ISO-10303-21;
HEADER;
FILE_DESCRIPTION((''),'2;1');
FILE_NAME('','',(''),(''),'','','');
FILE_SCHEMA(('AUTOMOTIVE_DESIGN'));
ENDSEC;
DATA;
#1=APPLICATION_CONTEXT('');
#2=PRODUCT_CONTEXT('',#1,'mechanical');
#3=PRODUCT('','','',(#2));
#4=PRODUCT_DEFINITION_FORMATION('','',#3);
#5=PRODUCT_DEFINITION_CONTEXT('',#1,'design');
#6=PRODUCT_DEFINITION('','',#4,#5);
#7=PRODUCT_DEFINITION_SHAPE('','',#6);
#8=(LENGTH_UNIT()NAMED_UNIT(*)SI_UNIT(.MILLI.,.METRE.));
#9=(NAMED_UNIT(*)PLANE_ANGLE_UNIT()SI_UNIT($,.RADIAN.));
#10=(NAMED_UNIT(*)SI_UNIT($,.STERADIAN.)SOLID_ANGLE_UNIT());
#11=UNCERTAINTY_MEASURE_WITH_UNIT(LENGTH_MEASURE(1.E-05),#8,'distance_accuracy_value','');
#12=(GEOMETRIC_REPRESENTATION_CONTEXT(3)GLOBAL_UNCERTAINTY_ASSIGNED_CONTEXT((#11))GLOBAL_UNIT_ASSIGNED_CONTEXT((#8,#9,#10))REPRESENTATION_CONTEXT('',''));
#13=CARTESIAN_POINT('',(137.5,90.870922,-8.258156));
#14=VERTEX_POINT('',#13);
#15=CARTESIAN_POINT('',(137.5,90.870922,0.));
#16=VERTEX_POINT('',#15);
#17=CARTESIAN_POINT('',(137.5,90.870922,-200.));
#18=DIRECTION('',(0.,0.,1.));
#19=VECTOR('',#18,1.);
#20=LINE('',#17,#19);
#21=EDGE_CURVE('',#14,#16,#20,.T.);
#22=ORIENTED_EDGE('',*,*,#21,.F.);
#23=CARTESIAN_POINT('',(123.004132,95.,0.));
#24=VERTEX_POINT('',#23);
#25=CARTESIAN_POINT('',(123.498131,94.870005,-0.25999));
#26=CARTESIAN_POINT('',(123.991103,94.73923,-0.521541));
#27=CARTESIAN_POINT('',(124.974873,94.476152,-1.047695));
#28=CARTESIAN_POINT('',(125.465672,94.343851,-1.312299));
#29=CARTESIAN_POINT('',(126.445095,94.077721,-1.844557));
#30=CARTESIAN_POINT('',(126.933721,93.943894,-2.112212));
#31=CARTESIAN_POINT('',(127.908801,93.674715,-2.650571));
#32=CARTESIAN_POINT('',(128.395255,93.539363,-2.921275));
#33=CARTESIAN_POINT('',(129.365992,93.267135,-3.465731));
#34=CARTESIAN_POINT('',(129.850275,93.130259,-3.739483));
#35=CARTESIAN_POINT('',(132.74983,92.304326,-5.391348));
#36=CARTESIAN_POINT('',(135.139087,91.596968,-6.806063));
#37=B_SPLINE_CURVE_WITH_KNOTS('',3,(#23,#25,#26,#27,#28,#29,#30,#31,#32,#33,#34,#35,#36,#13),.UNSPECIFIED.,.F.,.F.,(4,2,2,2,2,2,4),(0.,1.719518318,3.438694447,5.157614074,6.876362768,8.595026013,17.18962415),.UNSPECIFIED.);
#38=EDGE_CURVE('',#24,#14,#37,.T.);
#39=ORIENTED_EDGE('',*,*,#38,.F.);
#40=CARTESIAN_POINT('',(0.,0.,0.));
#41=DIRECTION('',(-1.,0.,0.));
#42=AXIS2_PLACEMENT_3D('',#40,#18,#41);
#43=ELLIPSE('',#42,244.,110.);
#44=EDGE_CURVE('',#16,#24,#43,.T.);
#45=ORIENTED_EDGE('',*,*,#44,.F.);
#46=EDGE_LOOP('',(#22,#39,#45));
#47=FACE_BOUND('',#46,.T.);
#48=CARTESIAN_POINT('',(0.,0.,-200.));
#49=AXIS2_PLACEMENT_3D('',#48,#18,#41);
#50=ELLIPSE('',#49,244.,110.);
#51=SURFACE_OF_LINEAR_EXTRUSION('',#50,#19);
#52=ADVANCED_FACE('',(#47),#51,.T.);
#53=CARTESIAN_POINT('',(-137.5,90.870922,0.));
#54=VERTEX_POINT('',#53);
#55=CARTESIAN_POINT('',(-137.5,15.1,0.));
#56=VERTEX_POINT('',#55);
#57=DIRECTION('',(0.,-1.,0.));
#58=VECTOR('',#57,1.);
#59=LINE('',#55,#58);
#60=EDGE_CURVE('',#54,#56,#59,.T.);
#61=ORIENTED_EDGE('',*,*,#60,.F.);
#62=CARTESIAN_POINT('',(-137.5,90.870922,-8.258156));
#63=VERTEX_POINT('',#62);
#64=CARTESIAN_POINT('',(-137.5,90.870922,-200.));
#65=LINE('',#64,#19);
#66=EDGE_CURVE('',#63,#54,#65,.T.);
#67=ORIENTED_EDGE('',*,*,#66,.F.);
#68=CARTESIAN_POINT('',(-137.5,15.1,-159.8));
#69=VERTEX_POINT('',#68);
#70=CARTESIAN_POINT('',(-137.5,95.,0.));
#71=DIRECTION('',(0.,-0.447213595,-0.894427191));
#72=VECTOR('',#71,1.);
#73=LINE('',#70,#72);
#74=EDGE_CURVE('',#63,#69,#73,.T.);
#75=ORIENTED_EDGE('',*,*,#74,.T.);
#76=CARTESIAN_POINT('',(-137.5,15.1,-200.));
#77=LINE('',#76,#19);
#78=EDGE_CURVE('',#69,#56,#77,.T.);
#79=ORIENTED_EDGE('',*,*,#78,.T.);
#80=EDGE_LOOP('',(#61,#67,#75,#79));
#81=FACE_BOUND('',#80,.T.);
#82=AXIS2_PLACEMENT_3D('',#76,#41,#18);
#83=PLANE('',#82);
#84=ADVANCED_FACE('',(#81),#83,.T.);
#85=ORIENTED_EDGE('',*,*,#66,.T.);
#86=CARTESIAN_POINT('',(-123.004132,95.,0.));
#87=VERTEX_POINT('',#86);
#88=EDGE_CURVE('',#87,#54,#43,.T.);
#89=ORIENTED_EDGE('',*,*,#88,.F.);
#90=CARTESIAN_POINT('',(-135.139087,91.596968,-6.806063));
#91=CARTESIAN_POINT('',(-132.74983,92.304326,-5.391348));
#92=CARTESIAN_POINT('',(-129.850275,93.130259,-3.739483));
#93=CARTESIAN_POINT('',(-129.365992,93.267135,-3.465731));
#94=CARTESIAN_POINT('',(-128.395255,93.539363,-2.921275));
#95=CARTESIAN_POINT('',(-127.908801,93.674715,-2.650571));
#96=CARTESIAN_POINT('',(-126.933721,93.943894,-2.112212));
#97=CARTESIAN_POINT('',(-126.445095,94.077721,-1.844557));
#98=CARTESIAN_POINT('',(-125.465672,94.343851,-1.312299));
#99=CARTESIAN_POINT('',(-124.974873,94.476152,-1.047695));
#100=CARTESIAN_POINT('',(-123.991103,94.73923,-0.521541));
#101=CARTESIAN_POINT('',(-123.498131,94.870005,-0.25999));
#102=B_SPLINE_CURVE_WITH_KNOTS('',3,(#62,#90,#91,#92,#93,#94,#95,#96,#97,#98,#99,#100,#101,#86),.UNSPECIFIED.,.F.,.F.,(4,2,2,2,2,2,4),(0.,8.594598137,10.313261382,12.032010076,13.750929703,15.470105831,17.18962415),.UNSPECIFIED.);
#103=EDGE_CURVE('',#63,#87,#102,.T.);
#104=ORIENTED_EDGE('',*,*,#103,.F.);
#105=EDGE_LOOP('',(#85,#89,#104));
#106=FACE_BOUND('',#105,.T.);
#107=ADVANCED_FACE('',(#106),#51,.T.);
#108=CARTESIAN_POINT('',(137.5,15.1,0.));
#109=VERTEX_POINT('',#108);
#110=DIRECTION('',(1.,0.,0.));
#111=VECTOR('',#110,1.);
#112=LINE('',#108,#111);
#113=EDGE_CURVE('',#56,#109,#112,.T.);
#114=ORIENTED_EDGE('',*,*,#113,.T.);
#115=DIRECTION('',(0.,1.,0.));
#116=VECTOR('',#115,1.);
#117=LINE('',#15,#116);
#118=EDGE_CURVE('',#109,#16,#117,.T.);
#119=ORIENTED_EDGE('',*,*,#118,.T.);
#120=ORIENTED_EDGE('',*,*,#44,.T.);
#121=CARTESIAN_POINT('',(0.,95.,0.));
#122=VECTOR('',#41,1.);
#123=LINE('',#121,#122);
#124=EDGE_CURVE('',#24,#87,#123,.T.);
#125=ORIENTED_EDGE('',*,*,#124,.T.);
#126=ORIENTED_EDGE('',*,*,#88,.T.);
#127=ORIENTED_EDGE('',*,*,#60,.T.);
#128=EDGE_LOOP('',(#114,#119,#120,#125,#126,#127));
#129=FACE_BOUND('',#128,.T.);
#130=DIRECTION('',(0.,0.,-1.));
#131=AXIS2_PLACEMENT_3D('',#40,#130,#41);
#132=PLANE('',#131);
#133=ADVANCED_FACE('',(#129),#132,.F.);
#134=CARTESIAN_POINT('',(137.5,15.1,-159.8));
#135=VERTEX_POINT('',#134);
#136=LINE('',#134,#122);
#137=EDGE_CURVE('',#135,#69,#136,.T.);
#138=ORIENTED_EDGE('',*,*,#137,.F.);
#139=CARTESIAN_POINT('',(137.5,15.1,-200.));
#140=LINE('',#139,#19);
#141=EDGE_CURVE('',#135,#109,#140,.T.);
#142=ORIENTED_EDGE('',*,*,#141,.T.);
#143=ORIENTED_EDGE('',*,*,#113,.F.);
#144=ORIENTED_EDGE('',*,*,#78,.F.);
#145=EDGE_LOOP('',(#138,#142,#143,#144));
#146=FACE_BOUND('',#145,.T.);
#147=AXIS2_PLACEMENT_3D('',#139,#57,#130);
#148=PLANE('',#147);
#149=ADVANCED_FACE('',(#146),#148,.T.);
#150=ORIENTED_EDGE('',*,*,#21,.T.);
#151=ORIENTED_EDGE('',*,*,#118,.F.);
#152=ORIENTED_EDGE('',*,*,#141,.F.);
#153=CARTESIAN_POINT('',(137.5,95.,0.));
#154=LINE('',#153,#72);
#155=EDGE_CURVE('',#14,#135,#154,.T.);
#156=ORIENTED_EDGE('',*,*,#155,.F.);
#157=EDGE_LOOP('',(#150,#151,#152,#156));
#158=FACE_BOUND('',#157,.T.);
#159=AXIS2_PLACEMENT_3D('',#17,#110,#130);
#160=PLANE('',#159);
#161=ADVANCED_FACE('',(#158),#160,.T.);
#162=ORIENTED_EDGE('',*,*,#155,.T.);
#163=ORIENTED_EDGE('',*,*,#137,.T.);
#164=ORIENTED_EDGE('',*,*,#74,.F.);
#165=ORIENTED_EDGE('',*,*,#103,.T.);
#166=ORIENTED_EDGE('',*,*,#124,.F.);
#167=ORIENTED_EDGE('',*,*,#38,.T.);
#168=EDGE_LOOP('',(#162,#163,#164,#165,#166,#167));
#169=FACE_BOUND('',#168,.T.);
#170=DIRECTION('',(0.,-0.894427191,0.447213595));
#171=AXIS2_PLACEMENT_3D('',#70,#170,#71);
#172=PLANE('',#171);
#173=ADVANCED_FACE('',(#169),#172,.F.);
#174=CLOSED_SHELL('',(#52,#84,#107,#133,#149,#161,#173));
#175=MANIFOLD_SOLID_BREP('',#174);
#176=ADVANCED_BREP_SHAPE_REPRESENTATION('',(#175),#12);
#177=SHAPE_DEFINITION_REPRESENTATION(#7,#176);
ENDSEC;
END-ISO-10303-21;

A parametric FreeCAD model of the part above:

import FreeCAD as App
import Part
import Sketcher
Q = App.Units.Quantity


def add_polygon(sketch, points):
    """Adds a closed chain of lines whose ends are joined by coincident constraints."""
    first, n = sketch.GeometryCount, len(points)
    for a, b in zip(points, points[1:] + points[:1]):
        sketch.addGeometry(Part.LineSegment(App.Vector(*a, 0), App.Vector(*b, 0)), False)
    for i in range(n):
        sketch.addConstraint(Sketcher.Constraint("Coincident", first + i, 2, first + (i + 1) % n, 1))

doc = App.newDocument("Part")
body = doc.addObject("PartDesign::Body", "Body")

sketch1 = doc.addObject("Sketcher::SketchObject", "Sketch")
body.addObject(sketch1)
sketch1.AttachmentSupport = (doc.XY_Plane, [""])
sketch1.MapMode = "FlatFace"
sketch1.addGeometry([
    Part.LineSegment(App.Vector(137.5, 15.1, 0), App.Vector(137.5, 90.870922, 0)),
    Part.BSplineCurve([App.Vector(137.5, 90.870922, 0), App.Vector(0, 133.155907, 0), App.Vector(-137.5, 90.870922, 0)], [3, 3], [4.113742813, 5.311035148], False, 2, [1, 0.82609929, 1], False),
    Part.LineSegment(App.Vector(-137.5, 90.870922, 0), App.Vector(-137.5, 15.1, 0)),
    Part.LineSegment(App.Vector(-137.5, 15.1, 0), App.Vector(137.5, 15.1, 0)),
], False)
sketch1.addConstraint([
    Sketcher.Constraint("Block", 1),
    Sketcher.Constraint("Coincident", 0, 2, 1, 1),
    Sketcher.Constraint("Coincident", 1, 2, 2, 1),
    Sketcher.Constraint("Coincident", 2, 2, 3, 1),
    Sketcher.Constraint("Coincident", 3, 2, 0, 1),
    Sketcher.Constraint("Vertical", 0),
    Sketcher.Constraint("Vertical", 2),
    Sketcher.Constraint("Horizontal", 3),
    Sketcher.Constraint("DistanceY", -1, 1, 2, 2, Q("15.1 mm")),
])
pad1 = doc.addObject("PartDesign::Pad", "Pad")
body.addObject(pad1)
pad1.Profile = sketch1
pad1.Length = 200
pad1.Reversed = True

sketch2 = doc.addObject("Sketcher::SketchObject", "Sketch001")
body.addObject(sketch2)
sketch2.AttachmentSupport = (doc.YZ_Plane, [""])
sketch2.MapMode = "FlatFace"
add_polygon(sketch2, [(110, 0), (95, 0), (-5, -200), (110, -200)])
sketch2.addConstraint([
    Sketcher.Constraint("Horizontal", 0),
    Sketcher.Constraint("Horizontal", 2),
    Sketcher.Constraint("Vertical", 3),
    Sketcher.Constraint("PointOnObject", 0, 2, -1),
    Sketcher.Constraint("DistanceX", 0, 2, 0, 1, Q("15 mm")),
    Sketcher.Constraint("DistanceX", 2, 1, 2, 2, Q("115 mm")),
    Sketcher.Constraint("DistanceY", 3, 1, 3, 2, Q("200 mm")),
    Sketcher.Constraint("DistanceX", -1, 1, 0, 2, Q("95 mm")),
])
pocket1 = doc.addObject("PartDesign::Pocket", "Pocket")
body.addObject(pocket1)
pocket1.Profile = sketch2
pocket1.Type = "ThroughAll"
pocket1.Midplane = True

doc.recompute()
